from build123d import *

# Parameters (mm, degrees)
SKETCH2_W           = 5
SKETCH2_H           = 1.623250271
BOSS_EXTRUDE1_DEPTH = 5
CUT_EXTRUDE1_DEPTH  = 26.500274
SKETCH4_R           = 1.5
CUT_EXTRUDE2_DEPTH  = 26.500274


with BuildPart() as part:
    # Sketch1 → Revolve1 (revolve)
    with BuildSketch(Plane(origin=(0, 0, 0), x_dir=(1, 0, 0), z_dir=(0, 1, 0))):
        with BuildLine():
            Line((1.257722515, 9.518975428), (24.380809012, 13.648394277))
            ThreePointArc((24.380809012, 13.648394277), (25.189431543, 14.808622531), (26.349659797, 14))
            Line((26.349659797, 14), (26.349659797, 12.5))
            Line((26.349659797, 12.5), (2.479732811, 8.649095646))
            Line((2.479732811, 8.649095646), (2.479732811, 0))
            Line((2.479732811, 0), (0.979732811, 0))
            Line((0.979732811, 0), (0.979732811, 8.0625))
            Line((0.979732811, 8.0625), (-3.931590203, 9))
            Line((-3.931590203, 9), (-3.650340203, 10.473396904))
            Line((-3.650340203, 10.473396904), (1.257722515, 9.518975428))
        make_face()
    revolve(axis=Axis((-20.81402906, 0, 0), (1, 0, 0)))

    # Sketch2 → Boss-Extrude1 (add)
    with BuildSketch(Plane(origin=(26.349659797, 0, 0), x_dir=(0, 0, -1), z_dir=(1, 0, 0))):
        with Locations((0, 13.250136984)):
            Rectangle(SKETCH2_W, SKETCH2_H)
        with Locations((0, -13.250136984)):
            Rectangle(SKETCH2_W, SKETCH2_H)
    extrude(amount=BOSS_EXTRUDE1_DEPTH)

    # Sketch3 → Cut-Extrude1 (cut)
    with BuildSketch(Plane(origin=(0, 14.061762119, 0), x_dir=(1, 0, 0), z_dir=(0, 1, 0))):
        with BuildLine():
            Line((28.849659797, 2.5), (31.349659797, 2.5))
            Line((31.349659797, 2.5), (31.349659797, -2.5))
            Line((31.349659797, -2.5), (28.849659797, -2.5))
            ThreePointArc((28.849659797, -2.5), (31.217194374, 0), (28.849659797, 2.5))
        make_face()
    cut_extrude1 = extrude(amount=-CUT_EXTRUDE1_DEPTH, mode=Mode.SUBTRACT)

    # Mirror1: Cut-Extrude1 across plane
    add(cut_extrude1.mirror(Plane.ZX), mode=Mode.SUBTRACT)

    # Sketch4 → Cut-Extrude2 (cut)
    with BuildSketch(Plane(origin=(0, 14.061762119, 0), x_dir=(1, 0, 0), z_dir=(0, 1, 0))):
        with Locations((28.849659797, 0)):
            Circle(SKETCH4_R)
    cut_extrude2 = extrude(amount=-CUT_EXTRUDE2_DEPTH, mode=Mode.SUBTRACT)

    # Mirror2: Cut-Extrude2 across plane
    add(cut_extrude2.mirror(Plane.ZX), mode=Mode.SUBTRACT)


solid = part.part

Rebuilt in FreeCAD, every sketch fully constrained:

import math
import FreeCAD as App
import Part
import Sketcher

doc = App.newDocument("Part")
body = doc.addObject("PartDesign::Body", "Body")

# Sketch on XZ plane
sketch1 = doc.addObject("Sketcher::SketchObject", "Sketch")
body.addObject(sketch1)
sketch1.AttachmentSupport = (doc.XZ_Plane, [""])
sketch1.MapMode = "FlatFace"
sketch1.addGeometry([
    Part.LineSegment(App.Vector(24.380809, -13.648394, 0), App.Vector(1.257723, -9.518975, 0)),  # 0
    Part.LineSegment(App.Vector(1.257723, -9.518975, 0), App.Vector(-3.65034, -10.473397, 0)),  # 1
    Part.LineSegment(App.Vector(-3.65034, -10.473397, 0), App.Vector(-3.93159, -9, 0)),  # 2
    Part.LineSegment(App.Vector(-3.93159, -9, 0), App.Vector(0.979733, -8.0625, 0)),  # 3
    Part.LineSegment(App.Vector(0.979733, -8.0625, 0), App.Vector(0.979733, 0, 0)),  # 4
    Part.LineSegment(App.Vector(0.979733, 0, 0), App.Vector(2.479733, 0, 0)),  # 5
    Part.LineSegment(App.Vector(2.479733, 0, 0), App.Vector(2.479733, -8.649096, 0)),  # 6
    Part.LineSegment(App.Vector(2.479733, -8.649096, 0), App.Vector(26.34966, -12.5, 0)),  # 7
    Part.LineSegment(App.Vector(26.34966, -12.5, 0), App.Vector(26.34966, -14, 0)),  # 8
    Part.ArcOfCircle(Part.Circle(App.Vector(25.365234, -13.824197, 0), App.Vector(0, 0, 1), 1), math.radians(169.874617), math.radians(349.874617)),  # 9
], False)
sketch1.addConstraint([
    Sketcher.Constraint("Coincident", 0, 2, 1, 1),
    Sketcher.Constraint("Coincident", 1, 2, 2, 1),
    Sketcher.Constraint("Coincident", 2, 2, 3, 1),
    Sketcher.Constraint("Coincident", 3, 2, 4, 1),
    Sketcher.Constraint("Coincident", 4, 2, 5, 1),
    Sketcher.Constraint("Coincident", 5, 2, 6, 1),
    Sketcher.Constraint("Coincident", 6, 2, 7, 1),
    Sketcher.Constraint("Coincident", 7, 2, 8, 1),
    Sketcher.Constraint("Coincident", 8, 2, 9, 2),
    Sketcher.Constraint("Coincident", 9, 1, 0, 1),
    Sketcher.Constraint("Vertical", 4),
    Sketcher.Constraint("Horizontal", 5),
    Sketcher.Constraint("Vertical", 6),
    Sketcher.Constraint("Vertical", 8),
    Sketcher.Constraint("PointOnObject", 4, 2, -1),
    Sketcher.Constraint("Perpendicular", 2, 3),
    Sketcher.Constraint("Equal", 5, 8),
    Sketcher.Constraint("Equal", 1, 3),
    Sketcher.Constraint("Radius", 9, 1.0),
    Sketcher.Constraint("Distance", 1, 5.0),
    Sketcher.Constraint("DistanceX", 5, 1, 5, 2, 1.5),
    Sketcher.Constraint("DistanceY", 2, 2, -1, 1, 9.0),
    Sketcher.Constraint("DistanceY", 8, 2, -1, 1, 14.0),
    Sketcher.Constraint("Distance", 2, 1.5),
    Sketcher.Constraint("DistanceY", 4, 1, 4, 2, 8.0625),
    Sketcher.Constraint("DistanceY", 9, 3, 1, 2, 3.3508),
    Sketcher.Constraint("DistanceX", 3, 2, 9, 3, 24.385502),
    Sketcher.Constraint("DistanceY", 1, 2, 6, 2, 1.824301),
    Sketcher.Constraint("DistanceY", 9, 1, 6, 2, 4.999299),
    Sketcher.Constraint("DistanceX", 1, 2, -1, 1, 3.65034),
    Sketcher.Constraint("DistanceX", 0, 2, 9, 3, 24.107512),
])
revolution = doc.addObject("PartDesign::Revolution", "Revolution")
body.addObject(revolution)
revolution.Profile = sketch1
revolution.ReferenceAxis = (sketch1, ["H_Axis"])
revolution.Angle = 360

# Sketch on YZ plane
sketch2 = doc.addObject("Sketcher::SketchObject", "Sketch001")
body.addObject(sketch2)
sketch2.AttachmentSupport = (doc.YZ_Plane, [""])
sketch2.MapMode = "FlatFace"
sketch2.AttachmentOffset = App.Placement(App.Vector(0, 0, 26.34966), App.Rotation())
sketch2.addGeometry([
    Part.LineSegment(App.Vector(14.061762, 2.5, 0), App.Vector(12.438512, 2.5, 0)),  # 0
    Part.LineSegment(App.Vector(12.438512, 2.5, 0), App.Vector(12.438512, -2.5, 0)),  # 1
    Part.LineSegment(App.Vector(12.438512, -2.5, 0), App.Vector(14.061762, -2.5, 0)),  # 2
    Part.LineSegment(App.Vector(14.061762, -2.5, 0), App.Vector(14.061762, 2.5, 0)),  # 3
    Part.LineSegment(App.Vector(-12.438512, 2.5, 0), App.Vector(-14.061762, 2.5, 0)),  # 4
    Part.LineSegment(App.Vector(-14.061762, 2.5, 0), App.Vector(-14.061762, -2.5, 0)),  # 5
    Part.LineSegment(App.Vector(-14.061762, -2.5, 0), App.Vector(-12.438512, -2.5, 0)),  # 6
    Part.LineSegment(App.Vector(-12.438512, -2.5, 0), App.Vector(-12.438512, 2.5, 0)),  # 7
], False)
sketch2.addConstraint([
    Sketcher.Constraint("Coincident", 0, 2, 1, 1),
    Sketcher.Constraint("Coincident", 1, 2, 2, 1),
    Sketcher.Constraint("Coincident", 2, 2, 3, 1),
    Sketcher.Constraint("Coincident", 3, 2, 0, 1),
    Sketcher.Constraint("Coincident", 4, 2, 5, 1),
    Sketcher.Constraint("Coincident", 5, 2, 6, 1),
    Sketcher.Constraint("Coincident", 6, 2, 7, 1),
    Sketcher.Constraint("Coincident", 7, 2, 4, 1),
    Sketcher.Constraint("Horizontal", 0),
    Sketcher.Constraint("Vertical", 1),
    Sketcher.Constraint("Horizontal", 2),
    Sketcher.Constraint("Vertical", 3),
    Sketcher.Constraint("Horizontal", 4),
    Sketcher.Constraint("Vertical", 5),
    Sketcher.Constraint("Horizontal", 6),
    Sketcher.Constraint("Vertical", 7),
    Sketcher.Constraint("Symmetric", 2, 2, 4, 2, -1, 1),
    Sketcher.Constraint("Symmetric", 0, 2, 6, 2, -1, 1),
    Sketcher.Constraint("Horizontal", 3, 2, 4, 2),
    Sketcher.Constraint("DistanceY", 1, 2, 1, 1, 5.0),
    Sketcher.Constraint("DistanceX", 0, 2, 0, 1, 1.62325),
    Sketcher.Constraint("DistanceX", -1, 1, 0, 2, 12.438512),
])
pad1 = doc.addObject("PartDesign::Pad", "Pad")
body.addObject(pad1)
pad1.Profile = sketch2
pad1.Length = 5

# Sketch on XZ plane
sketch3 = doc.addObject("Sketcher::SketchObject", "Sketch002")
body.addObject(sketch3)
sketch3.AttachmentSupport = (doc.XZ_Plane, [""])
sketch3.MapMode = "FlatFace"
sketch3.AttachmentOffset = App.Placement(App.Vector(0, 0, -14.061762), App.Rotation())
sketch3.addGeometry([
    Part.LineSegment(App.Vector(31.34966, -2.5, 0), App.Vector(28.84966, -2.5, 0)),
    Part.ArcOfCircle(Part.Circle(App.Vector(28.713489, 0, 0), App.Vector(0, 0, 1), 2.503706), math.radians(-86.882267), math.radians(86.882267)),
    Part.LineSegment(App.Vector(28.84966, 2.5, 0), App.Vector(31.34966, 2.5, 0)),
    Part.LineSegment(App.Vector(31.34966, 2.5, 0), App.Vector(31.34966, -2.5, 0)),
], False)
sketch3.addConstraint([
    Sketcher.Constraint("Coincident", 0, 2, 1, 1),
    Sketcher.Constraint("Coincident", 1, 2, 2, 1),
    Sketcher.Constraint("Coincident", 2, 2, 3, 1),
    Sketcher.Constraint("Coincident", 3, 2, 0, 1),
    Sketcher.Constraint("Horizontal", 0),
    Sketcher.Constraint("Horizontal", 2),
    Sketcher.Constraint("Vertical", 3),
    Sketcher.Constraint("Symmetric", 0, 2, 1, 2, -1),
    Sketcher.Constraint("DistanceY", 3, 2, 3, 1, 5.0),
    Sketcher.Constraint("DistanceX", 0, 2, 0, 1, 2.5),
    Sketcher.Constraint("Radius", 1, 2.503706),
    Sketcher.Constraint("DistanceX", -1, 1, 1, 3, 28.713489),
])
pocket1 = doc.addObject("PartDesign::Pocket", "Pocket")
body.addObject(pocket1)
pocket1.Profile = sketch3
pocket1.Length = 26.500274
pocket1.Reversed = True
doc.recompute()

mirrored = doc.addObject("PartDesign::Mirrored", "Mirrored")
body.addObject(mirrored)
mirrored.Originals = [pocket1]
mirrored.MirrorPlane = (doc.XZ_Plane, [""])
body.Tip = mirrored

# Sketch on XZ plane
sketch4 = doc.addObject("Sketcher::SketchObject", "Sketch003")
body.addObject(sketch4)
sketch4.AttachmentSupport = (doc.XZ_Plane, [""])
sketch4.MapMode = "FlatFace"
sketch4.AttachmentOffset = App.Placement(App.Vector(0, 0, -14.061762), App.Rotation())
sketch4.addGeometry(Part.Circle(App.Vector(28.84966, 0, 0), App.Vector(0, 0, 1), 1.5), False)
sketch4.addConstraint([
    Sketcher.Constraint("PointOnObject", 0, 3, -1),
    Sketcher.Constraint("Diameter", 0, 3.0),
    Sketcher.Constraint("DistanceX", -1, 1, 0, 3, 28.84966),
])
pocket2 = doc.addObject("PartDesign::Pocket", "Pocket001")
body.addObject(pocket2)
pocket2.Profile = sketch4
pocket2.Length = 26.500274
pocket2.Reversed = True
doc.recompute()

mirrored2 = doc.addObject("PartDesign::Mirrored", "Mirrored001")
body.addObject(mirrored2)
mirrored2.Originals = [pocket2]
mirrored2.MirrorPlane = (doc.XZ_Plane, [""])
body.Tip = mirrored2

doc.recompute()
